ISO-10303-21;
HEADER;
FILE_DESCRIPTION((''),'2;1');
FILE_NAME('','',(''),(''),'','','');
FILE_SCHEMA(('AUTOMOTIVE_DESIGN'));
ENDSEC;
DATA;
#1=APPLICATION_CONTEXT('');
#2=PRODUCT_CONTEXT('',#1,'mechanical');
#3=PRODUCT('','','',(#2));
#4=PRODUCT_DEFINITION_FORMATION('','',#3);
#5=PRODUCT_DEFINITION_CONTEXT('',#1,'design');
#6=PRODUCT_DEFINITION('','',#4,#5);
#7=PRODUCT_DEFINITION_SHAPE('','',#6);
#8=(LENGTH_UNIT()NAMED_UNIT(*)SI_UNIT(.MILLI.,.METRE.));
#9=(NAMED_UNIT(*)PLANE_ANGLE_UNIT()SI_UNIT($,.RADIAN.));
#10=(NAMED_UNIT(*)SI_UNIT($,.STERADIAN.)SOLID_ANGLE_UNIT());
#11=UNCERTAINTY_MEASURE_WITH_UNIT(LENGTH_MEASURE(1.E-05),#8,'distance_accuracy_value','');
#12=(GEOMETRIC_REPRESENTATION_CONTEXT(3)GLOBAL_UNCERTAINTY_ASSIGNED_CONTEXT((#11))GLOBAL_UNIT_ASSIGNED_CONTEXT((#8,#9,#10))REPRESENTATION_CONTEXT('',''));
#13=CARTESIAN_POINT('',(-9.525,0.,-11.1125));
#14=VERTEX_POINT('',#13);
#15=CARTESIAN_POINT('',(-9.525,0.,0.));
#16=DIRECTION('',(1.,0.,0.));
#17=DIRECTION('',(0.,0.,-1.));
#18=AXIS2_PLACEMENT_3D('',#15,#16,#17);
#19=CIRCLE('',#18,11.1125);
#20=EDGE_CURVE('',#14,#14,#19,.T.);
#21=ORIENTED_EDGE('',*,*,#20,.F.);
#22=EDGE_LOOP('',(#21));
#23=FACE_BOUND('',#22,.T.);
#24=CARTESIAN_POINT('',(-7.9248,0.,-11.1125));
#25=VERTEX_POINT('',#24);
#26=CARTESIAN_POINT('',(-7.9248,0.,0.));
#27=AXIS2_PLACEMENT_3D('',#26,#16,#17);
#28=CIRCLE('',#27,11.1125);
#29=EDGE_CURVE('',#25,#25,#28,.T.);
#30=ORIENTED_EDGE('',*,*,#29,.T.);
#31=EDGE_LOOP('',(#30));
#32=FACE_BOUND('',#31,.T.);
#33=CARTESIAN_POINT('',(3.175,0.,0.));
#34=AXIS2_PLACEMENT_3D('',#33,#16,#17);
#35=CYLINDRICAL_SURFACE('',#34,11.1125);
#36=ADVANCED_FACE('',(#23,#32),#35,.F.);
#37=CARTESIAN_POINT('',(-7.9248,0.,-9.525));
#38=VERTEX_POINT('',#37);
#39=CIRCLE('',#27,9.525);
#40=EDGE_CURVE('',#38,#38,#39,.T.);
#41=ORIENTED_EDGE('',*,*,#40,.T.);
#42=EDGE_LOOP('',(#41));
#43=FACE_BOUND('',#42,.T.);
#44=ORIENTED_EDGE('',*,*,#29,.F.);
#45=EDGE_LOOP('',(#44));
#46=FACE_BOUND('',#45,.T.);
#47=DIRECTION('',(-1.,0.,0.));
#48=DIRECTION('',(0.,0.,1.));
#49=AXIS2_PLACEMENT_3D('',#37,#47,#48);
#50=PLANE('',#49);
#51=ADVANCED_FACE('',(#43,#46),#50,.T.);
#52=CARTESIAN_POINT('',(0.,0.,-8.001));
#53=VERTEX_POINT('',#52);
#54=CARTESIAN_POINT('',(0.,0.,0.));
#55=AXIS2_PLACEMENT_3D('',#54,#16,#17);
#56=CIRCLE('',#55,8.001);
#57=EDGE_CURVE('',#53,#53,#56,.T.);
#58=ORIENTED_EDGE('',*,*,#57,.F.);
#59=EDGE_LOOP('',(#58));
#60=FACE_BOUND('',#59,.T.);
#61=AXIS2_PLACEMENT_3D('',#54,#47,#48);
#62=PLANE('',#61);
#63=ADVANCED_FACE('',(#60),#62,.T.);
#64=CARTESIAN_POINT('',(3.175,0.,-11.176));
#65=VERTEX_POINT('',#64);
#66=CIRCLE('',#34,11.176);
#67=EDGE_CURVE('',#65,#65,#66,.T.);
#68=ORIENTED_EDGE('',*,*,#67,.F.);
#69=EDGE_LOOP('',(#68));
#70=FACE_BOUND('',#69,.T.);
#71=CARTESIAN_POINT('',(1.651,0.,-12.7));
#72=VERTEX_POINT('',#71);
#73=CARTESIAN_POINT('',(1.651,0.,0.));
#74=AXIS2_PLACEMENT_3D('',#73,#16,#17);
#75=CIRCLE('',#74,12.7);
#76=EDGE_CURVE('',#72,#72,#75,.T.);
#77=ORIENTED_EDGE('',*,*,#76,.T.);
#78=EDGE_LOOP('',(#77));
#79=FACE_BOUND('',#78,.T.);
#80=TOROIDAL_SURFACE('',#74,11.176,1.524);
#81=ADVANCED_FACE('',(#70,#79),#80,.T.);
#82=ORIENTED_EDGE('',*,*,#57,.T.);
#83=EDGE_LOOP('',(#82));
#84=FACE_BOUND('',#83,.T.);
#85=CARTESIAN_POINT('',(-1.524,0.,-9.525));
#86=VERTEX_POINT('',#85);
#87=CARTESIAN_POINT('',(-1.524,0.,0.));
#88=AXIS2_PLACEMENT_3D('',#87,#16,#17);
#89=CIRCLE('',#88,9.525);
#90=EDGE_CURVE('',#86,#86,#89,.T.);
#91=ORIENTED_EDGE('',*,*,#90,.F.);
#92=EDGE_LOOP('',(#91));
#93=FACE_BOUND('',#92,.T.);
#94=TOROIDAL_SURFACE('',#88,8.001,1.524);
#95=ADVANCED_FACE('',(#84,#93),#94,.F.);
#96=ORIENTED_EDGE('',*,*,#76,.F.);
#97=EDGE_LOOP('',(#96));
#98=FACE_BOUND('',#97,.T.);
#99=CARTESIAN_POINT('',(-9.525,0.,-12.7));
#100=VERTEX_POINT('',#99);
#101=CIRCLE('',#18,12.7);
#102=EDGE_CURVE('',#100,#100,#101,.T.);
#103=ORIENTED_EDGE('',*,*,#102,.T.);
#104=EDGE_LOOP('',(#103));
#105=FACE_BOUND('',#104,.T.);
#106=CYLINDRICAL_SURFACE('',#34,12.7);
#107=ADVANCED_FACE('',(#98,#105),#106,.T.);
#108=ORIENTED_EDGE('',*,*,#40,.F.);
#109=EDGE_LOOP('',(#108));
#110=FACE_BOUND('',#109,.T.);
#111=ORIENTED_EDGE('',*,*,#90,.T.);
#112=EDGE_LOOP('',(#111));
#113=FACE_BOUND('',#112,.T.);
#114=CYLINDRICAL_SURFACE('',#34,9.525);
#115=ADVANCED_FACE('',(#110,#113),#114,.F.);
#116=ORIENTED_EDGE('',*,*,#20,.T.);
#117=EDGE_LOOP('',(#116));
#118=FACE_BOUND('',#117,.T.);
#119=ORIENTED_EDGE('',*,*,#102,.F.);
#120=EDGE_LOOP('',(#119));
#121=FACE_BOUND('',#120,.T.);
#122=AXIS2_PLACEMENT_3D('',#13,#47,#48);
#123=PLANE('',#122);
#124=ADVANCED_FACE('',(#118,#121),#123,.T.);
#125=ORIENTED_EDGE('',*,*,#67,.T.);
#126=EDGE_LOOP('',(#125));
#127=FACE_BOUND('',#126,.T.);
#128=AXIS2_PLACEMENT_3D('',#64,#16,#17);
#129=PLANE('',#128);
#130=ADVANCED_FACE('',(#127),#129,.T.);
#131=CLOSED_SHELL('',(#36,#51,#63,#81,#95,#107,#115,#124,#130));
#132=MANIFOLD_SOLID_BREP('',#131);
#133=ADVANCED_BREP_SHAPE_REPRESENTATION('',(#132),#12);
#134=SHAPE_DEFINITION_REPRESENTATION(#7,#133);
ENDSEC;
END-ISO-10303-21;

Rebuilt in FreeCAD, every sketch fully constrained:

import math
import FreeCAD as App
import Part
import Sketcher
Q = App.Units.Quantity

doc = App.newDocument("Part")
params = doc.addObject("Spreadsheet::Sheet", "Params")
for row, (alias, value) in enumerate([
    ("sketch1_radius", "0.06 in"),
    ("sketch1_width", "0.44 in"),
    ("sketch1_width2", "0.125 in"),
    ("sketch1_width3", "0.063 in"),
    ("sketch1_height", "0.315 in"),
    ("revolution_angle", "360 deg"),
], start=1):
    params.set(f"A{row}", alias)
    params.set(f"B{row}", "=" + value)
    params.setAlias(f"B{row}", alias)

body = doc.addObject("PartDesign::Body", "Body")

# Sketch on XZ plane
sketch1 = body.newObject("Sketcher::SketchObject", "Sketch")
sketch1.AttachmentSupport = (doc.getObject("XZ_Plane"), [""])
sketch1.MapMode = "FlatFace"
sketch1.addGeometry(Part.LineSegment(App.Vector(0, -8, 0), App.Vector(0, 0, 0)), False)
sketch1.addGeometry(Part.LineSegment(App.Vector(0, 0, 0), App.Vector(3.2, 0, 0)), False)
sketch1.addGeometry(Part.LineSegment(App.Vector(3.2, 0, 0), App.Vector(3.2, -11.2, 0)), False)
sketch1.addGeometry(Part.ArcOfCircle(Part.Circle(App.Vector(1.7, -11.2, 0), App.Vector(0, 0, 1), 1.5), math.radians(-90), math.radians(0)), False)
sketch1.addGeometry(Part.LineSegment(App.Vector(1.7, -12.7, 0), App.Vector(-9.5, -12.7, 0)), False)
sketch1.addGeometry(Part.LineSegment(App.Vector(-9.5, -12.7, 0), App.Vector(-9.5, -11.1, 0)), False)
sketch1.addGeometry(Part.LineSegment(App.Vector(-9.5, -11.1, 0), App.Vector(-7.9, -11.1, 0)), False)
sketch1.addGeometry(Part.LineSegment(App.Vector(-7.9, -11.1, 0), App.Vector(-7.9, -9.5, 0)), False)
sketch1.addGeometry(Part.LineSegment(App.Vector(-7.9, -9.5, 0), App.Vector(-1.5, -9.5, 0)), False)
sketch1.addGeometry(Part.ArcOfCircle(Part.Circle(App.Vector(-1.5, -8, 0), App.Vector(0, 0, 1), 1.5), math.radians(-90), math.radians(0)), False)
sketch1.addConstraint(Sketcher.Constraint("Coincident", 0, 2, 1, 1))
sketch1.addConstraint(Sketcher.Constraint("Coincident", 1, 2, 2, 1))
sketch1.addConstraint(Sketcher.Constraint("Tangent", 2, 2, 3, 2))
sketch1.addConstraint(Sketcher.Constraint("Tangent", 3, 1, 4, 1))
sketch1.addConstraint(Sketcher.Constraint("Coincident", 4, 2, 5, 1))
sketch1.addConstraint(Sketcher.Constraint("Coincident", 5, 2, 6, 1))
sketch1.addConstraint(Sketcher.Constraint("Coincident", 6, 2, 7, 1))
sketch1.addConstraint(Sketcher.Constraint("Coincident", 7, 2, 8, 1))
sketch1.addConstraint(Sketcher.Constraint("Tangent", 8, 2, 9, 1))
sketch1.addConstraint(Sketcher.Constraint("Tangent", 9, 2, 0, 1))
sketch1.addConstraint(Sketcher.Constraint("Vertical", 0))
sketch1.addConstraint(Sketcher.Constraint("Horizontal", 1))
sketch1.addConstraint(Sketcher.Constraint("Vertical", 2))
sketch1.addConstraint(Sketcher.Constraint("Horizontal", 4))
sketch1.addConstraint(Sketcher.Constraint("Vertical", 5))
sketch1.addConstraint(Sketcher.Constraint("Horizontal", 6))
sketch1.addConstraint(Sketcher.Constraint("Vertical", 7))
sketch1.addConstraint(Sketcher.Constraint("Horizontal", 8))
sketch1.addConstraint(Sketcher.Constraint("Coincident", 0, 2, -1, 1))
sketch1.addConstraint(Sketcher.Constraint("Equal", 3, 9))
sketch1.addConstraint(Sketcher.Constraint("Equal", 4, 2))
sketch1.addConstraint(Sketcher.Constraint("Equal", 5, 7))
sketch1.addConstraint(Sketcher.Constraint("Radius", 3, Q("0.06 in")))
sketch1.addConstraint(Sketcher.Constraint("DistanceX", 4, 2, 4, 1, Q("0.44 in")))
sketch1.addConstraint(Sketcher.Constraint("DistanceX", 1, 1, 1, 2, Q("0.125 in")))
sketch1.addConstraint(Sketcher.Constraint("DistanceX", 6, 1, 6, 2, Q("0.063 in")))
sketch1.addConstraint(Sketcher.Constraint("DistanceY", 0, 1, 0, 2, Q("0.315 in")))
sketch1.setExpression("Constraints[22]", "Params.sketch1_radius")
sketch1.setExpression("Constraints[23]", "Params.sketch1_width")
sketch1.setExpression("Constraints[24]", "Params.sketch1_width2")
sketch1.setExpression("Constraints[25]", "Params.sketch1_width3")
sketch1.setExpression("Constraints[26]", "Params.sketch1_height")
revolution = body.newObject("PartDesign::Revolution", "Revolution")
revolution.Profile = sketch1
revolution.ReferenceAxis = (sketch1, ["H_Axis"])
revolution.setExpression("Angle", "Params.revolution_angle")

doc.recompute()
